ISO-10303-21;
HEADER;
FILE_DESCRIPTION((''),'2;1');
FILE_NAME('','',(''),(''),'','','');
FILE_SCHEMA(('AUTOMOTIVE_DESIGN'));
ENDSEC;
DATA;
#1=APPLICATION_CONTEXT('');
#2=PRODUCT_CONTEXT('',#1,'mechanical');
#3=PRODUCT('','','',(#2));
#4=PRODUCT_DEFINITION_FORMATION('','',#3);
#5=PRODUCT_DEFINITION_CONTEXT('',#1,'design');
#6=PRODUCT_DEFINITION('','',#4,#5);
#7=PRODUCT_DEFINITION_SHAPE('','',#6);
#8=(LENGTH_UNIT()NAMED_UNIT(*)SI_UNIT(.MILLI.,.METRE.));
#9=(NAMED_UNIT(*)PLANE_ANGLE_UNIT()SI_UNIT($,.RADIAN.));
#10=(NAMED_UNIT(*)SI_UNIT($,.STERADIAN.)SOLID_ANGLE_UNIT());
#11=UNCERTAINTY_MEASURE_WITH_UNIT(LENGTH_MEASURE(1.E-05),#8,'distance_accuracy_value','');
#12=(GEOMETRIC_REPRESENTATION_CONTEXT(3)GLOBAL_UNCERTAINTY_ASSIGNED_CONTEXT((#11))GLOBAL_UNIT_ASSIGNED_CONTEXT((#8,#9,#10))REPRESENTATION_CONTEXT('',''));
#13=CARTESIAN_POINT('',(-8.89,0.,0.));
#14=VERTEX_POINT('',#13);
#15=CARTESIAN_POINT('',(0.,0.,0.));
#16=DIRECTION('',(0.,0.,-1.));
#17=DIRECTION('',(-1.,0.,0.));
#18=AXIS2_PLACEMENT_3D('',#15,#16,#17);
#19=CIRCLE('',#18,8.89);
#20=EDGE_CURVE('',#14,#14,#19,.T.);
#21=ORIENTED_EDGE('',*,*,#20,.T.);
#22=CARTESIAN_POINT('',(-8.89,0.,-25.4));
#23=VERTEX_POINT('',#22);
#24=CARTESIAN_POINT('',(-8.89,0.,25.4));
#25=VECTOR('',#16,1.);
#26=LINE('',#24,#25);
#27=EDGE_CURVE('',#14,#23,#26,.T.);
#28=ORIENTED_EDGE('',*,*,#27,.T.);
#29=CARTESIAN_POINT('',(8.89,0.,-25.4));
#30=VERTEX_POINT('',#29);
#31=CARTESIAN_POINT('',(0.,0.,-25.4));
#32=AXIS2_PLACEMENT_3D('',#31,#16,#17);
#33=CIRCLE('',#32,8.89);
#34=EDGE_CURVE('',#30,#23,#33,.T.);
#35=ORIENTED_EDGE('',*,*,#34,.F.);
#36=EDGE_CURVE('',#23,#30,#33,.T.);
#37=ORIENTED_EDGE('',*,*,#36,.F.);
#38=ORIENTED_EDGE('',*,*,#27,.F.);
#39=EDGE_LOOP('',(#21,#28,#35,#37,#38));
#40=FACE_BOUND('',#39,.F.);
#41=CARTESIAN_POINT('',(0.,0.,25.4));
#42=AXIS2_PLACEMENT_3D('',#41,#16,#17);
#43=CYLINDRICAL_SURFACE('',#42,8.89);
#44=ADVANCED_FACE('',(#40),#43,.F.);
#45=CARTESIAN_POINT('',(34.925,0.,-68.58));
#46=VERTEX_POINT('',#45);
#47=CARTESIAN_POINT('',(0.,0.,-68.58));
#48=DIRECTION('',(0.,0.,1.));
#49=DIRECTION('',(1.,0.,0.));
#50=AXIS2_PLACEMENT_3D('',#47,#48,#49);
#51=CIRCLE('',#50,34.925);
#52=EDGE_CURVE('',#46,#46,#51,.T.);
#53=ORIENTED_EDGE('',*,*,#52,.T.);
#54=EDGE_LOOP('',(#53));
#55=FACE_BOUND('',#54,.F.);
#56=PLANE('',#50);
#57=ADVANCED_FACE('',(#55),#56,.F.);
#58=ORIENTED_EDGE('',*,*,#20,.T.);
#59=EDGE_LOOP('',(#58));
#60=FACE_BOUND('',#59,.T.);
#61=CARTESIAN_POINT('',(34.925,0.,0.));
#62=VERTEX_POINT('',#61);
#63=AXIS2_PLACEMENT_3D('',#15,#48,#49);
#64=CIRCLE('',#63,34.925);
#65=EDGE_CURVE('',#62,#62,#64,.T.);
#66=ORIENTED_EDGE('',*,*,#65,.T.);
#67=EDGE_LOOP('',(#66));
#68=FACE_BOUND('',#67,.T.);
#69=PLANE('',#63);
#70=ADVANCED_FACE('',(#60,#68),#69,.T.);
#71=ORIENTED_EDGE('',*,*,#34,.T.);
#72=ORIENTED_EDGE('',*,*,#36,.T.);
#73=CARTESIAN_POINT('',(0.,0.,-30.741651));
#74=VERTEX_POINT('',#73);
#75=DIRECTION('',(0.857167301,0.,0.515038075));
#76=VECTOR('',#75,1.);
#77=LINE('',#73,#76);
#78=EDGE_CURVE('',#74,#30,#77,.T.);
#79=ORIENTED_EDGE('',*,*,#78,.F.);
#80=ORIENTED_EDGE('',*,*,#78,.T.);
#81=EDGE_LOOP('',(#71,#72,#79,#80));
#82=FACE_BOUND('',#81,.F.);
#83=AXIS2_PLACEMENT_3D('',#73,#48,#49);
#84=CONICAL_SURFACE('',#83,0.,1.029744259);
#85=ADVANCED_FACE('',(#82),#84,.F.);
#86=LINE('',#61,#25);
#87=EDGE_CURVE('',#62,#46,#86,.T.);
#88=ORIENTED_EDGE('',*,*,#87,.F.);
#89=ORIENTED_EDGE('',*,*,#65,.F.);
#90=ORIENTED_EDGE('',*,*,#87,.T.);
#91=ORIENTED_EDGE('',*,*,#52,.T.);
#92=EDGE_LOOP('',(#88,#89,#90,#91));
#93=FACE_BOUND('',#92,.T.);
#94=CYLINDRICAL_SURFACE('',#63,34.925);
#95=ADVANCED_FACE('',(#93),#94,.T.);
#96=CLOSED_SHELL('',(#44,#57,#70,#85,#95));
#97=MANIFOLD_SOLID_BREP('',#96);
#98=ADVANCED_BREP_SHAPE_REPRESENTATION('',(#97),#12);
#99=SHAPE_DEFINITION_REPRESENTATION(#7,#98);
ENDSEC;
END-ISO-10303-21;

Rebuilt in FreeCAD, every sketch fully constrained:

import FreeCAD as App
import Part
import Sketcher
from FreeCAD import Vector
Q = App.Units.Quantity

doc = App.newDocument("Part")
body = doc.addObject("PartDesign::Body", "Body")

# Sketch on XY plane
sketch1 = doc.addObject("Sketcher::SketchObject", "Sketch")
body.addObject(sketch1)
sketch1.AttachmentSupport = (doc.XY_Plane, [""])
sketch1.MapMode = "FlatFace"
sketch1.addGeometry(Part.Circle(Vector(0, 0, 0), Vector(0, 0, 1), 34.925), False)
sketch1.addConstraint([
    Sketcher.Constraint("Coincident", 0, 3, -1, 1),
    Sketcher.Constraint("Diameter", 0, Q("2.75 in")),
])
pad1 = doc.addObject("PartDesign::Pad", "Pad")
body.addObject(pad1)
pad1.Profile = sketch1
pad1.Length = Q("2.7 in")
pad1.Reversed = True

# Sketch on XY plane
sketch2 = doc.addObject("Sketcher::SketchObject", "Sketch001")
body.addObject(sketch2)
sketch2.AttachmentSupport = (doc.XY_Plane, [""])
sketch2.MapMode = "FlatFace"
sketch2.addGeometry(Part.Circle(Vector(0, 0, 0), Vector(0, 0, 1), 8.89), False)
sketch2.addConstraint([
    Sketcher.Constraint("Coincident", 0, 3, -1, 1),
    Sketcher.Constraint("Diameter", 0, Q("0.7 in")),
])
doc.recompute()
hole = doc.addObject("PartDesign::Hole", "Hole")
body.addObject(hole)
hole.Profile = sketch2
hole.ThreadType = "None"
hole.Diameter = Q("0.7 in")
hole.DepthType = "Dimension"
hole.Depth = Q("1 in")
hole.DrillPoint = "Angled"
hole.DrillPointAngle = 118

doc.recompute()
